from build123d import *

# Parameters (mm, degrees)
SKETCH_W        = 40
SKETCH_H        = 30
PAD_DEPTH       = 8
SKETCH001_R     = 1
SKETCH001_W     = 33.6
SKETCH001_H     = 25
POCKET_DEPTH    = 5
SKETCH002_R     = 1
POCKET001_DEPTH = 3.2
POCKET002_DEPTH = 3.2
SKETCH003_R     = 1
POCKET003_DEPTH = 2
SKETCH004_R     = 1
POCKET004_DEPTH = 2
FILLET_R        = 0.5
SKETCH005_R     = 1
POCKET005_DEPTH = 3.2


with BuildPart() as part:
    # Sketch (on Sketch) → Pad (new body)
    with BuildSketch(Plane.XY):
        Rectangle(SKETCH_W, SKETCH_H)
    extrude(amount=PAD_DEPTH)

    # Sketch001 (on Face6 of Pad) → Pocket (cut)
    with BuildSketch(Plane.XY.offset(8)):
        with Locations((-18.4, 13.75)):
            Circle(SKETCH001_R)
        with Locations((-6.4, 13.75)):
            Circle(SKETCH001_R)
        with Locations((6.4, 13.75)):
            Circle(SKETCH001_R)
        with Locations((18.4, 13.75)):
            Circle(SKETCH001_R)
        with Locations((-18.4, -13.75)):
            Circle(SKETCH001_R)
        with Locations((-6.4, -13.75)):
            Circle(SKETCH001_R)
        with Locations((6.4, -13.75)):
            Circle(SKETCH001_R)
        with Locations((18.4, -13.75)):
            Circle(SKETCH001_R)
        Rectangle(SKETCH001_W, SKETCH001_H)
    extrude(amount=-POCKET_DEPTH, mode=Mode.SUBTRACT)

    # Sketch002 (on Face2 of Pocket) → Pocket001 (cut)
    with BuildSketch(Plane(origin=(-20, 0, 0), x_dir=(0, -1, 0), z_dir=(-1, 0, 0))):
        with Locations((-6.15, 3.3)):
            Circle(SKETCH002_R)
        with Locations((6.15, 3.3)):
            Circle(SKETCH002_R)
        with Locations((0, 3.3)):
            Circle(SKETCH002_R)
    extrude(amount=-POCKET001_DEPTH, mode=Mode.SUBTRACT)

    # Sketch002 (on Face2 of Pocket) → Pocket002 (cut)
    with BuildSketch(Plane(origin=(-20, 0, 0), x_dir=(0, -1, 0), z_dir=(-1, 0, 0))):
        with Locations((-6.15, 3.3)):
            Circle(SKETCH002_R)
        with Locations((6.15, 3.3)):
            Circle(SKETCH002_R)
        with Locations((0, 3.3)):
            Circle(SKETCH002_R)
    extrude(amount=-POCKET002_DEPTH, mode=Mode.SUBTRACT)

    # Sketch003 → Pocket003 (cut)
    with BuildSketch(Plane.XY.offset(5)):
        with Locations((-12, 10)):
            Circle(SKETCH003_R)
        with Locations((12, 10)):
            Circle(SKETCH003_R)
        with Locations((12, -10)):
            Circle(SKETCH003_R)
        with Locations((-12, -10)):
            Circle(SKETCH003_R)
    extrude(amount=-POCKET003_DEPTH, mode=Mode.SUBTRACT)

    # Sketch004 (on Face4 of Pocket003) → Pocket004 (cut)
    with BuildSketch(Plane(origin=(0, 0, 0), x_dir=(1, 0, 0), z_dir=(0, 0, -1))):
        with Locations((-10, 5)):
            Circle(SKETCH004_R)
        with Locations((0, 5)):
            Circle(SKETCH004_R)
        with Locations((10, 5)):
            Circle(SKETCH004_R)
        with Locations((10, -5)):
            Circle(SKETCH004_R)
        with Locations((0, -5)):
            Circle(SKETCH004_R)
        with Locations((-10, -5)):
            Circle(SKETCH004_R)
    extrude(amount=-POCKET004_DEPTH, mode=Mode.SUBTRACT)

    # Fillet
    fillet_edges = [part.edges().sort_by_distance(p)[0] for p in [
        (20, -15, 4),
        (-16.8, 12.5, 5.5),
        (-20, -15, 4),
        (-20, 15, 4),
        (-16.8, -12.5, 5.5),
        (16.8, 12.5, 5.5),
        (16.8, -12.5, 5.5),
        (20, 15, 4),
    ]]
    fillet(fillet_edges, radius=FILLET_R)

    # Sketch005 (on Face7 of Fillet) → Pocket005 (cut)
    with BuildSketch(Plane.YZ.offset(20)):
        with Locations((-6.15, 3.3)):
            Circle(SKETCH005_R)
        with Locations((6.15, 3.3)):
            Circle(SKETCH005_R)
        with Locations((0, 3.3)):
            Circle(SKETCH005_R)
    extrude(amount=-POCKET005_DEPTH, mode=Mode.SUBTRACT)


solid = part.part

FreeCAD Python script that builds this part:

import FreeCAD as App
import Part
import Sketcher


def edges_at(feature, points):
    """Names of the edges that pass closest to the given points."""
    edges = feature.Shape.Edges
    near = lambda p: min(range(len(edges)), key=lambda i: edges[i].distToShape(Part.Vertex(*p))[0])
    return sorted({f"Edge{near(p) + 1}" for p in points})

doc = App.newDocument("Part")
body = doc.addObject("PartDesign::Body", "Body")

sketch1 = body.newObject("Sketcher::SketchObject", "Sketch")
sketch1.AttachmentSupport = (doc.getObject("XY_Plane"), [""])
sketch1.MapMode = "FlatFace"
sketch1.addGeometry([
    Part.LineSegment(App.Vector(-20, 15, 0), App.Vector(-20, -15, 0)),
    Part.LineSegment(App.Vector(-20, -15, 0), App.Vector(20, -15, 0)),
    Part.LineSegment(App.Vector(20, -15, 0), App.Vector(20, 15, 0)),
    Part.LineSegment(App.Vector(20, 15, 0), App.Vector(-20, 15, 0)),
], False)
sketch1.addConstraint([
    Sketcher.Constraint("Coincident", 0, 2, 1, 1),
    Sketcher.Constraint("Coincident", 1, 2, 2, 1),
    Sketcher.Constraint("Coincident", 2, 2, 3, 1),
    Sketcher.Constraint("Coincident", 3, 2, 0, 1),
    Sketcher.Constraint("Vertical", 0),
    Sketcher.Constraint("Horizontal", 1),
    Sketcher.Constraint("Vertical", 2),
    Sketcher.Constraint("Horizontal", 3),
    Sketcher.Constraint("Symmetric", 0, 2, 2, 2, -1, 1),
    Sketcher.Constraint("DistanceX", 1, 1, 1, 2, 40.0),
    Sketcher.Constraint("DistanceY", 0, 2, 0, 1, 30.0),
])
pad1 = body.newObject("PartDesign::Pad", "Pad")
pad1.Profile = sketch1
pad1.Length = 8

sketch2 = body.newObject("Sketcher::SketchObject", "Sketch001")
sketch2.AttachmentSupport = (doc.getObject("XY_Plane"), [""])
sketch2.MapMode = "FlatFace"
sketch2.AttachmentOffset = App.Placement(App.Vector(0, 0, 8), App.Rotation())
sketch2.addGeometry([
    Part.Circle(App.Vector(-18.4, 13.8, 0), App.Vector(0, 0, 1), 1),
    Part.Circle(App.Vector(-6.4, 13.8, 0), App.Vector(0, 0, 1), 1),
    Part.Circle(App.Vector(6.4, 13.8, 0), App.Vector(0, 0, 1), 1),
    Part.Circle(App.Vector(18.4, 13.8, 0), App.Vector(0, 0, 1), 1),
    Part.Circle(App.Vector(-18.4, -13.8, 0), App.Vector(0, 0, 1), 1),
    Part.Circle(App.Vector(-6.4, -13.8, 0), App.Vector(0, 0, 1), 1),
    Part.Circle(App.Vector(6.4, -13.8, 0), App.Vector(0, 0, 1), 1),
    Part.Circle(App.Vector(18.4, -13.8, 0), App.Vector(0, 0, 1), 1),
    Part.LineSegment(App.Vector(-16.8, 12.5, 0), App.Vector(-16.8, -12.5, 0)),
    Part.LineSegment(App.Vector(-16.8, -12.5, 0), App.Vector(16.8, -12.5, 0)),
    Part.LineSegment(App.Vector(16.8, -12.5, 0), App.Vector(16.8, 12.5, 0)),
    Part.LineSegment(App.Vector(16.8, 12.5, 0), App.Vector(-16.8, 12.5, 0)),
], False)
sketch2.addConstraint([
    Sketcher.Constraint("Coincident", 8, 2, 9, 1),
    Sketcher.Constraint("Coincident", 9, 2, 10, 1),
    Sketcher.Constraint("Coincident", 10, 2, 11, 1),
    Sketcher.Constraint("Coincident", 11, 2, 8, 1),
    Sketcher.Constraint("Vertical", 8),
    Sketcher.Constraint("Horizontal", 9),
    Sketcher.Constraint("Vertical", 10),
    Sketcher.Constraint("Horizontal", 11),
    Sketcher.Constraint("Equal", 0, 1),
    Sketcher.Constraint("Equal", 1, 2),
    Sketcher.Constraint("Equal", 2, 3),
    Sketcher.Constraint("Equal", 3, 4),
    Sketcher.Constraint("Equal", 4, 5),
    Sketcher.Constraint("Equal", 5, 6),
    Sketcher.Constraint("Equal", 6, 7),
    Sketcher.Constraint("Symmetric", 3, 3, 4, 3, -1, 1),
    Sketcher.Constraint("Symmetric", 2, 3, 5, 3, -1, 1),
    Sketcher.Constraint("Symmetric", 1, 3, 6, 3, -1, 1),
    Sketcher.Constraint("Symmetric", 0, 3, 7, 3, -1, 1),
    Sketcher.Constraint("Symmetric", 8, 2, 10, 2, -1, 1),
    Sketcher.Constraint("Symmetric", 1, 3, 2, 3, -2),
    Sketcher.Constraint("Symmetric", 0, 3, 3, 3, -2),
    Sketcher.Constraint("Horizontal", 0, 3, 1, 3),
    Sketcher.Constraint("Diameter", 0, 2.0),
    Sketcher.Constraint("DistanceY", 8, 2, 8, 1, 25.0),
    Sketcher.Constraint("DistanceX", 9, 1, 9, 2, 33.6),
    Sketcher.Constraint("DistanceX", 0, 3, 1, 3, 12.0),
    Sketcher.Constraint("DistanceX", 0, 3, -1, 1, 18.4),
    Sketcher.Constraint("DistanceY", 4, 3, 0, 3, 27.5),
])
pocket1 = body.newObject("PartDesign::Pocket", "Pocket")
pocket1.Profile = sketch2
pocket1.Length = 5

sketch3 = body.newObject("Sketcher::SketchObject", "Sketch002")
sketch3.AttachmentSupport = (doc.getObject("YZ_Plane"), [""])
sketch3.MapMode = "FlatFace"
sketch3.AttachmentOffset = App.Placement(App.Vector(0, 0, -20), App.Rotation())
sketch3.addGeometry([
    Part.Circle(App.Vector(6.2, 3.3, 0), App.Vector(0, 0, 1), 1),
    Part.Circle(App.Vector(-6.2, 3.3, 0), App.Vector(0, 0, 1), 1),
    Part.Circle(App.Vector(0, 3.3, 0), App.Vector(0, 0, 1), 1),
], False)
sketch3.addConstraint([
    Sketcher.Constraint("Equal", 0, 1),
    Sketcher.Constraint("Equal", 1, 2),
    Sketcher.Constraint("Symmetric", 0, 3, 1, 3, -2),
    Sketcher.Constraint("PointOnObject", 2, 3, -2),
    Sketcher.Constraint("Horizontal", 1, 3, 2, 3),
    Sketcher.Constraint("Diameter", 0, 2.0),
    Sketcher.Constraint("DistanceY", -1, 1, 0, 3, 3.3),
    Sketcher.Constraint("DistanceX", 1, 3, 0, 3, 12.3),
])
pocket2 = body.newObject("PartDesign::Pocket", "Pocket001")
pocket2.Profile = sketch3
pocket2.Length = 3.2
pocket2.Reversed = True

sketch4 = body.newObject("Sketcher::SketchObject", "Sketch003")
sketch4.AttachmentSupport = (doc.getObject("YZ_Plane"), [""])
sketch4.MapMode = "FlatFace"
sketch4.AttachmentOffset = App.Placement(App.Vector(0, 0, -20), App.Rotation())
sketch4.addGeometry([
    Part.Circle(App.Vector(6.2, 3.3, 0), App.Vector(0, 0, 1), 1),
    Part.Circle(App.Vector(-6.2, 3.3, 0), App.Vector(0, 0, 1), 1),
    Part.Circle(App.Vector(0, 3.3, 0), App.Vector(0, 0, 1), 1),
], False)
sketch4.addConstraint([
    Sketcher.Constraint("Equal", 0, 1),
    Sketcher.Constraint("Equal", 1, 2),
    Sketcher.Constraint("Symmetric", 0, 3, 1, 3, -2),
    Sketcher.Constraint("PointOnObject", 2, 3, -2),
    Sketcher.Constraint("Horizontal", 1, 3, 2, 3),
    Sketcher.Constraint("Diameter", 0, 2.0),
    Sketcher.Constraint("DistanceY", -1, 1, 0, 3, 3.3),
    Sketcher.Constraint("DistanceX", 1, 3, 0, 3, 12.3),
])
pocket3 = body.newObject("PartDesign::Pocket", "Pocket002")
pocket3.Profile = sketch4
pocket3.Length = 3.2
pocket3.Reversed = True

sketch5 = body.newObject("Sketcher::SketchObject", "Sketch004")
sketch5.AttachmentSupport = (doc.getObject("XY_Plane"), [""])
sketch5.MapMode = "FlatFace"
sketch5.AttachmentOffset = App.Placement(App.Vector(0, 0, 5), App.Rotation())
sketch5.addGeometry([
    Part.Circle(App.Vector(-12, 10, 0), App.Vector(0, 0, 1), 1),
    Part.Circle(App.Vector(12, 10, 0), App.Vector(0, 0, 1), 1),
    Part.Circle(App.Vector(12, -10, 0), App.Vector(0, 0, 1), 1),
    Part.Circle(App.Vector(-12, -10, 0), App.Vector(0, 0, 1), 1),
], False)
sketch5.addConstraint([
    Sketcher.Constraint("Equal", 0, 1),
    Sketcher.Constraint("Equal", 1, 2),
    Sketcher.Constraint("Equal", 2, 3),
    Sketcher.Constraint("Symmetric", 0, 3, 2, 3, -1, 1),
    Sketcher.Constraint("Symmetric", 1, 3, 3, 3, -1, 1),
    Sketcher.Constraint("Symmetric", 0, 3, 1, 3, -2),
    Sketcher.Constraint("Diameter", 0, 2.0),
    Sketcher.Constraint("DistanceX", 0, 3, -1, 1, 12.0),
    Sketcher.Constraint("DistanceY", -1, 1, 0, 3, 10.0),
])
pocket4 = body.newObject("PartDesign::Pocket", "Pocket003")
pocket4.Profile = sketch5
pocket4.Length = 2

sketch6 = body.newObject("Sketcher::SketchObject", "Sketch005")
sketch6.AttachmentSupport = (doc.getObject("XY_Plane"), [""])
sketch6.MapMode = "FlatFace"
sketch6.addGeometry([
    Part.Circle(App.Vector(-10, -5, 0), App.Vector(0, 0, 1), 1),
    Part.Circle(App.Vector(0, -5, 0), App.Vector(0, 0, 1), 1),
    Part.Circle(App.Vector(10, -5, 0), App.Vector(0, 0, 1), 1),
    Part.Circle(App.Vector(10, 5, 0), App.Vector(0, 0, 1), 1),
    Part.Circle(App.Vector(0, 5, 0), App.Vector(0, 0, 1), 1),
    Part.Circle(App.Vector(-10, 5, 0), App.Vector(0, 0, 1), 1),
], False)
sketch6.addConstraint([
    Sketcher.Constraint("Equal", 0, 1),
    Sketcher.Constraint("Equal", 1, 2),
    Sketcher.Constraint("Equal", 2, 3),
    Sketcher.Constraint("Equal", 3, 4),
    Sketcher.Constraint("Equal", 4, 5),
    Sketcher.Constraint("Symmetric", 0, 3, 3, 3, -1, 1),
    Sketcher.Constraint("Symmetric", 1, 3, 4, 3, -1, 1),
    Sketcher.Constraint("Symmetric", 2, 3, 5, 3, -1, 1),
    Sketcher.Constraint("Symmetric", 0, 3, 2, 3, -2),
    Sketcher.Constraint("PointOnObject", 1, 3, -2),
    Sketcher.Constraint("Horizontal", 0, 3, 1, 3),
    Sketcher.Constraint("Diameter", 0, 2.0),
    Sketcher.Constraint("DistanceX", 0, 3, -1, 1, 10.0),
    Sketcher.Constraint("DistanceY", 0, 3, -1, 1, 5.0),
])
pocket5 = body.newObject("PartDesign::Pocket", "Pocket004")
pocket5.Profile = sketch6
pocket5.Length = 2
pocket5.Reversed = True
doc.recompute()

fillet = body.newObject("PartDesign::Fillet", "Fillet")
fillet.Base = (pocket5, edges_at(pocket5, [
    (20, -15, 4),
    (-16.8, 12.5, 5.5),
    (-20, -15, 4),
    (-20, 15, 4),
    (-16.8, -12.5, 5.5),
    (16.8, 12.5, 5.5),
    (16.8, -12.5, 5.5),
    (20, 15, 4),
]))
fillet.Radius = 0.5

sketch7 = body.newObject("Sketcher::SketchObject", "Sketch006")
sketch7.AttachmentSupport = (doc.getObject("YZ_Plane"), [""])
sketch7.MapMode = "FlatFace"
sketch7.AttachmentOffset = App.Placement(App.Vector(0, 0, 20), App.Rotation())
sketch7.addGeometry([
    Part.Circle(App.Vector(-6.2, 3.3, 0), App.Vector(0, 0, 1), 1),
    Part.Circle(App.Vector(6.2, 3.3, 0), App.Vector(0, 0, 1), 1),
    Part.Circle(App.Vector(0, 3.3, 0), App.Vector(0, 0, 1), 1),
], False)
sketch7.addConstraint([
    Sketcher.Constraint("Equal", 0, 1),
    Sketcher.Constraint("Equal", 1, 2),
    Sketcher.Constraint("Symmetric", 0, 3, 1, 3, -2),
    Sketcher.Constraint("PointOnObject", 2, 3, -2),
    Sketcher.Constraint("Horizontal", 1, 3, 2, 3),
    Sketcher.Constraint("Diameter", 0, 2.0),
    Sketcher.Constraint("DistanceY", -1, 1, 0, 3, 3.3),
    Sketcher.Constraint("DistanceX", 0, 3, 1, 3, 12.3),
])
pocket6 = body.newObject("PartDesign::Pocket", "Pocket005")
pocket6.Profile = sketch7
pocket6.Length = 3.2

doc.recompute()
